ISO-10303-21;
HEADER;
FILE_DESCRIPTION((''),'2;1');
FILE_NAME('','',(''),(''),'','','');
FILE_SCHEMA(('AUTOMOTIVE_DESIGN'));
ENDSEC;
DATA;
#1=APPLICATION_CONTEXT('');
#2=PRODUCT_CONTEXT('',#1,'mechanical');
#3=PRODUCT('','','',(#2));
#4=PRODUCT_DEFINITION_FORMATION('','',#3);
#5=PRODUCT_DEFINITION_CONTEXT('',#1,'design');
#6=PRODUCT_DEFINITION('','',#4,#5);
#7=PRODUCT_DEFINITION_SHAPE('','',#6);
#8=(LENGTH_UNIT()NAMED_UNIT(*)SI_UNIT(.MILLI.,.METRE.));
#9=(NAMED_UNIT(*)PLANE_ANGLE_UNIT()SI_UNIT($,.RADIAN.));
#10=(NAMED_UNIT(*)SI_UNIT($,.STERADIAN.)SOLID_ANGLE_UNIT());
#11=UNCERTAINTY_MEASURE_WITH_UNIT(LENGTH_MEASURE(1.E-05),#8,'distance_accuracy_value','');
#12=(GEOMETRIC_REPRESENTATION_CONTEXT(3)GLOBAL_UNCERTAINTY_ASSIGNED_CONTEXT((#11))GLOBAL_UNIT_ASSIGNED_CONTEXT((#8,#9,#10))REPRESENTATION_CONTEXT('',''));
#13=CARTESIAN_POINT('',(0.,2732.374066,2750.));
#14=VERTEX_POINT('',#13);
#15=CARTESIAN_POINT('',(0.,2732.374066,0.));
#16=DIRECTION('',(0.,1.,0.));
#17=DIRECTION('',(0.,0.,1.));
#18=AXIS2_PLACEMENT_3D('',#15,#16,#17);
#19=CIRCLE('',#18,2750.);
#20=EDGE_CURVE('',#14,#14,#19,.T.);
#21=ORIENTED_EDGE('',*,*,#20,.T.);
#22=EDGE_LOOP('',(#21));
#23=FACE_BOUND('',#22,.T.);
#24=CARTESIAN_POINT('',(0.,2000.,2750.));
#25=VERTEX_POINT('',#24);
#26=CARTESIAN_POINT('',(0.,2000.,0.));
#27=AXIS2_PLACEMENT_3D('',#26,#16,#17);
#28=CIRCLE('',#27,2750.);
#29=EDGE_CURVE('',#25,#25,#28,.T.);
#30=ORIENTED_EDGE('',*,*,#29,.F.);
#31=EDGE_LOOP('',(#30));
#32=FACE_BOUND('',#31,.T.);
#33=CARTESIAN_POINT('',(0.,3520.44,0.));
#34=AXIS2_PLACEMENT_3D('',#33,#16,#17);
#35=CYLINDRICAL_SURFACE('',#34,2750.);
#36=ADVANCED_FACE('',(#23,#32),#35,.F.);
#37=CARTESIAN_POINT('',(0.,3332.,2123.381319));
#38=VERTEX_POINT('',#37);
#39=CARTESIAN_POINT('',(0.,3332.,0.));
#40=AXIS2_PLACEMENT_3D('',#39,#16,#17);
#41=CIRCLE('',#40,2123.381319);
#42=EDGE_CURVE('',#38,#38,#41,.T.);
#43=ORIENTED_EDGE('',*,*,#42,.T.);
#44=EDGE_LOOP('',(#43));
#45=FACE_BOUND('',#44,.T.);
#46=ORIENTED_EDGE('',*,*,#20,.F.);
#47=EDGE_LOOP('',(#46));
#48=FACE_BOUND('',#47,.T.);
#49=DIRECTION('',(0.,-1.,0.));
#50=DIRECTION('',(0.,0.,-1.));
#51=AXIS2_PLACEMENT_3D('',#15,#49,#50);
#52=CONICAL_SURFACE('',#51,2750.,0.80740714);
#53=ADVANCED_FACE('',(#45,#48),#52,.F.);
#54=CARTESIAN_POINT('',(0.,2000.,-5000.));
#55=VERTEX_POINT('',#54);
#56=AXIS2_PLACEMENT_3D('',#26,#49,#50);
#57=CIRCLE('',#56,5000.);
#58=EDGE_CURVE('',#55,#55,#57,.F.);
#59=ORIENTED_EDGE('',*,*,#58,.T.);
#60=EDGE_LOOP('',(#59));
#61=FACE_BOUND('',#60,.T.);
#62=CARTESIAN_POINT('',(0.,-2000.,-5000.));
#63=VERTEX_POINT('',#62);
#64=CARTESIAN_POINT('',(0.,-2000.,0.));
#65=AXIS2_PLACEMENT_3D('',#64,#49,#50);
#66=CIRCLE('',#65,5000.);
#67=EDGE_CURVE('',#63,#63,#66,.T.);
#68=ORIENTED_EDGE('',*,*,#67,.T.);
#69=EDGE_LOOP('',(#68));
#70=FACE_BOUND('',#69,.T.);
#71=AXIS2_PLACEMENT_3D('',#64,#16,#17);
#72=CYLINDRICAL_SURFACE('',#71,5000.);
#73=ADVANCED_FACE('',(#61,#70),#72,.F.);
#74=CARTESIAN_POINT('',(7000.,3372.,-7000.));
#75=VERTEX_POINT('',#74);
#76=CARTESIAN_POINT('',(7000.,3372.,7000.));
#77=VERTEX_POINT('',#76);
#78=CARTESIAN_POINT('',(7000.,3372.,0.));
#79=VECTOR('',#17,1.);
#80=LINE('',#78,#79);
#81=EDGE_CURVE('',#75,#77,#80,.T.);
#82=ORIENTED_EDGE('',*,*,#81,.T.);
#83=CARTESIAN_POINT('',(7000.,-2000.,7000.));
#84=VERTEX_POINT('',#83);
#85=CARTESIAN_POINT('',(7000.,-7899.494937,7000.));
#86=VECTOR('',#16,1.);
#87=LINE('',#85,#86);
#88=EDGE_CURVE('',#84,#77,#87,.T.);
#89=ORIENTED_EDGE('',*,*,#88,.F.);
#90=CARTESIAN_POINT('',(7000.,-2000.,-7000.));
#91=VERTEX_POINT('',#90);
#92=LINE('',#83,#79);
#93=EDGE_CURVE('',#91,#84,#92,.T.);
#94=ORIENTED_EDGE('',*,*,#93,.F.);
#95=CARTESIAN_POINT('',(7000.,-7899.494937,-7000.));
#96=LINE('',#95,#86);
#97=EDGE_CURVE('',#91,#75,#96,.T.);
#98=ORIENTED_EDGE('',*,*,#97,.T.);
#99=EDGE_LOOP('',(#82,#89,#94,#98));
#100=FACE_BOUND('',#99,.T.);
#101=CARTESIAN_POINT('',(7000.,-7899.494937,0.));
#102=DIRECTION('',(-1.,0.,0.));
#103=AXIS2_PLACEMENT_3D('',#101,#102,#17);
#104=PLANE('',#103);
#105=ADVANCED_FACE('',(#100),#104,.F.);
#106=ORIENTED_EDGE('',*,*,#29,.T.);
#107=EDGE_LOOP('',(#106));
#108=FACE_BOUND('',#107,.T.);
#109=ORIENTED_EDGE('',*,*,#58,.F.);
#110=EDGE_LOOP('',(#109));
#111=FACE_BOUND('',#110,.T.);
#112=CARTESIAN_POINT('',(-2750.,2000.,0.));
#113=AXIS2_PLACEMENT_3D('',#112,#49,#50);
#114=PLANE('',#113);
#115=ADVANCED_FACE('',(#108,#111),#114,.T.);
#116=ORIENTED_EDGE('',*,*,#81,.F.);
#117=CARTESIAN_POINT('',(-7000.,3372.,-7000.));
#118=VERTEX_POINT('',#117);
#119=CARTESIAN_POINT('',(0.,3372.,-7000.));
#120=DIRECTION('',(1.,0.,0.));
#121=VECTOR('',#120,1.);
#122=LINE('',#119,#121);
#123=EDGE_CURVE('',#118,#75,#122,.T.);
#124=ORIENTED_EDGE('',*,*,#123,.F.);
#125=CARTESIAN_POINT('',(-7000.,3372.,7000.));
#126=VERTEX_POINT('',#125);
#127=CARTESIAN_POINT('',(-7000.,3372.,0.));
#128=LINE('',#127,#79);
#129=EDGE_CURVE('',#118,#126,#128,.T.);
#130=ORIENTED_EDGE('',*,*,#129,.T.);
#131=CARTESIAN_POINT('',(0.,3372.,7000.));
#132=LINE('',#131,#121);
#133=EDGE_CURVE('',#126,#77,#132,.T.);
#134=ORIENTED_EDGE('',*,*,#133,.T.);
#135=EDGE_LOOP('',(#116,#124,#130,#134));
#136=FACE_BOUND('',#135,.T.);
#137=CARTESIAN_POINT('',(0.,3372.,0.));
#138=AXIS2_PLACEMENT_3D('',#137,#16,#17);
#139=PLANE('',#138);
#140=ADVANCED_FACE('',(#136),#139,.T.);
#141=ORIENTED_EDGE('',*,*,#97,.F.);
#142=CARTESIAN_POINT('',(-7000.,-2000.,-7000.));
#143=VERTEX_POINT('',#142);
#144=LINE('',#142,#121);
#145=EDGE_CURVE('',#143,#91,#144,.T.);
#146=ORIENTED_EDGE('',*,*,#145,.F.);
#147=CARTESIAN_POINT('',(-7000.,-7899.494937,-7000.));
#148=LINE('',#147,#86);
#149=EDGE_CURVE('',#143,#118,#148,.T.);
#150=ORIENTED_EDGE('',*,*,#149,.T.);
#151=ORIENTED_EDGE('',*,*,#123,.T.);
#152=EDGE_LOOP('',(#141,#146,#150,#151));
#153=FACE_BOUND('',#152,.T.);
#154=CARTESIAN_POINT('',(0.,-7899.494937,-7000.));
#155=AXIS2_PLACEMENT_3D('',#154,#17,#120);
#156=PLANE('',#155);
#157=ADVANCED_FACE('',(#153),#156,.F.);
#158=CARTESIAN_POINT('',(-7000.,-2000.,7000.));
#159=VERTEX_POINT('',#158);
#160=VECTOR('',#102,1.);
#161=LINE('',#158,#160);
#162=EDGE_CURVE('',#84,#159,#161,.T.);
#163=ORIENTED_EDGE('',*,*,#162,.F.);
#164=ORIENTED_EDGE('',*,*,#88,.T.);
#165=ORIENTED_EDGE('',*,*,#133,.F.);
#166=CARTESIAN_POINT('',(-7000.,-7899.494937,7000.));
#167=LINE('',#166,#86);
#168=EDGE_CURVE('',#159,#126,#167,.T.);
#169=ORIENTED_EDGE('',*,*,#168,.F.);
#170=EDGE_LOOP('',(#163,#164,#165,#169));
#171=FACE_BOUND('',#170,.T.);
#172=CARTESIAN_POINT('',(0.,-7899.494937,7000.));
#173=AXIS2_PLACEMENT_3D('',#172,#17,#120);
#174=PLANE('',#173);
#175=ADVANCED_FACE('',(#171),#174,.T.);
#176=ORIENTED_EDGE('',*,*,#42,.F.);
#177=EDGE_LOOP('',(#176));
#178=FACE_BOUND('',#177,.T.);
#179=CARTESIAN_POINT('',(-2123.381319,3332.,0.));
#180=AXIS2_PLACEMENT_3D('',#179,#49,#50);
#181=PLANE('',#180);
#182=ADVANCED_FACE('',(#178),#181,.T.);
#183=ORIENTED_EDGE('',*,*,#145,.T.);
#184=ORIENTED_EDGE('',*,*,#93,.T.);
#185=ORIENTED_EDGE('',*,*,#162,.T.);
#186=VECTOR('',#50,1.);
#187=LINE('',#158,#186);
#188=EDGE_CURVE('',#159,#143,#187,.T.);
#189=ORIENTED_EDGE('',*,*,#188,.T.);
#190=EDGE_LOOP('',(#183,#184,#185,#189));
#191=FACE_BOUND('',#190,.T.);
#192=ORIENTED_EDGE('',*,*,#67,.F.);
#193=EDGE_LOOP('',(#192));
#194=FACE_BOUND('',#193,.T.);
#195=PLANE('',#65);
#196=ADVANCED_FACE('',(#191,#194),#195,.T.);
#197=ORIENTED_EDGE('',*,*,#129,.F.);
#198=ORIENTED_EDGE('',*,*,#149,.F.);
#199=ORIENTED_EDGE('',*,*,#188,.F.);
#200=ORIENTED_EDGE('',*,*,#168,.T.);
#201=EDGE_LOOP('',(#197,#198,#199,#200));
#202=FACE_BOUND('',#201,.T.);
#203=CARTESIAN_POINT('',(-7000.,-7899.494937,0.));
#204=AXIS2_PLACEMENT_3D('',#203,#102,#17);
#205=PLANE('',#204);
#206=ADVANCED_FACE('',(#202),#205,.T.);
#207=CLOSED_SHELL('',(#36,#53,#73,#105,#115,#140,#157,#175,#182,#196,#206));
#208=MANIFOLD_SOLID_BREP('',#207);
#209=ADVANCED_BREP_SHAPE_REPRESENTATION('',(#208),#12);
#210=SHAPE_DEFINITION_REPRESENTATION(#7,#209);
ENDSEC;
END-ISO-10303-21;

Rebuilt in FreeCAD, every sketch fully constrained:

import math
import FreeCAD as App
import Part
import Sketcher

V = App.Vector


def add_polygon(sketch, points):
    """Adds a closed chain of lines whose ends are joined by coincident constraints."""
    first, n = sketch.GeometryCount, len(points)
    for a, b in zip(points, points[1:] + points[:1]):
        sketch.addGeometry(Part.LineSegment(App.Vector(*a, 0), App.Vector(*b, 0)), False)
    for i in range(n):
        sketch.addConstraint(Sketcher.Constraint("Coincident", first + i, 2, first + (i + 1) % n, 1))

doc = App.newDocument("Part")
body = doc.addObject("PartDesign::Body", "Body")

# Sketch on XY plane
sketch1 = doc.addObject("Sketcher::SketchObject", "Sketch")
body.addObject(sketch1)
sketch1.AttachmentSupport = (doc.XY_Plane, [""])
sketch1.MapMode = "FlatFace"
add_polygon(sketch1, [(-7000, 2000), (-2750, 2000), (-2750, 2732), (-2123, 3332), (0, 3332), (0, 3372), (-7000, 3372)])  # lines 0-6
sketch1.addConstraint([
    Sketcher.Constraint("Horizontal", 0),
    Sketcher.Constraint("Vertical", 1),
    Sketcher.Constraint("Horizontal", 3),
    Sketcher.Constraint("Vertical", 4),
    Sketcher.Constraint("Horizontal", 5),
    Sketcher.Constraint("Vertical", 6),
    Sketcher.Constraint("PointOnObject", 3, 2, -2),
    Sketcher.Constraint("DistanceX", 0, 1, 0, 2, 4250.0),
    Sketcher.Constraint("DistanceX", 5, 2, 5, 1, 7000.0),
    Sketcher.Constraint("DistanceY", 4, 1, 4, 2, 40.0),
    Sketcher.Constraint("DistanceY", 6, 2, 6, 1, 1372.0),
    Sketcher.Constraint("DistanceY", -1, 1, 0, 2, 2000.0),
    Sketcher.Constraint("DistanceX", 3, 1, 3, 2, 2123.381319),
    Sketcher.Constraint("Distance", 2, 867.295931),
])
revolution = doc.addObject("PartDesign::Revolution", "Revolution")
body.addObject(revolution)
revolution.Profile = sketch1
revolution.ReferenceAxis = (sketch1, ["V_Axis"])
revolution.Angle = 360

# Sketch on XZ plane
sketch2 = doc.addObject("Sketcher::SketchObject", "Sketch001")
body.addObject(sketch2)
sketch2.AttachmentSupport = (doc.XZ_Plane, [""])
sketch2.MapMode = "FlatFace"
sketch2.AttachmentOffset = App.Placement(V(0, 0, -3372), App.Rotation())
sketch2.addGeometry([
    Part.ArcOfCircle(Part.Circle(V(0, 0, 0), V(0, 0, 1), 7000), math.radians(90), math.radians(180)),  # 0
    Part.LineSegment(V(-7000, 0, 0), V(-7000, 7000, 0)),  # 1
    Part.LineSegment(V(-7000, 7000, 0), V(0, 7000, 0)),  # 2
    Part.LineSegment(V(0, -7000, 0), V(-7000, -7000, 0)),  # 3
    Part.LineSegment(V(-7000, -7000, 0), V(-7000, 0, 0)),  # 4
    Part.ArcOfCircle(Part.Circle(V(0, 0, 0), V(0, 0, 1), 7000), math.radians(180), math.radians(270)),  # 5
    Part.LineSegment(V(7000, -7000, 0), V(0, -7000, 0)),  # 6
    Part.ArcOfCircle(Part.Circle(V(0, 0, 0), V(0, 0, 1), 7000), math.radians(-90), math.radians(0)),  # 7
    Part.LineSegment(V(7000, 0, 0), V(7000, -7000, 0)),  # 8
    Part.LineSegment(V(7000, 7000, 0), V(7000, 0, 0)),  # 9
    Part.ArcOfCircle(Part.Circle(V(0, 0, 0), V(0, 0, 1), 7000), math.radians(0), math.radians(90)),  # 10
    Part.LineSegment(V(0, 7000, 0), V(7000, 7000, 0)),  # 11
], False)
sketch2.addConstraint([
    Sketcher.Constraint("Coincident", 0, 2, 1, 1),
    Sketcher.Constraint("Coincident", 1, 2, 2, 1),
    Sketcher.Constraint("Coincident", 2, 2, 0, 1),
    Sketcher.Constraint("Coincident", 3, 2, 4, 1),
    Sketcher.Constraint("Coincident", 4, 2, 5, 1),
    Sketcher.Constraint("Coincident", 5, 2, 3, 1),
    Sketcher.Constraint("Coincident", 6, 2, 7, 1),
    Sketcher.Constraint("Coincident", 7, 2, 8, 1),
    Sketcher.Constraint("Coincident", 8, 2, 6, 1),
    Sketcher.Constraint("Coincident", 9, 2, 10, 1),
    Sketcher.Constraint("Coincident", 10, 2, 11, 1),
    Sketcher.Constraint("Coincident", 11, 2, 9, 1),
    Sketcher.Constraint("Vertical", 1),
    Sketcher.Constraint("Horizontal", 2),
    Sketcher.Constraint("Horizontal", 3),
    Sketcher.Constraint("Vertical", 4),
    Sketcher.Constraint("Horizontal", 6),
    Sketcher.Constraint("Vertical", 8),
    Sketcher.Constraint("Vertical", 9),
    Sketcher.Constraint("Horizontal", 11),
    Sketcher.Constraint("Coincident", 0, 3, -1, 1),
    Sketcher.Constraint("Coincident", 5, 3, -1, 1),
    Sketcher.Constraint("Coincident", 7, 3, -1, 1),
    Sketcher.Constraint("Coincident", 10, 3, -1, 1),
    Sketcher.Constraint("Equal", 0, 5),
    Sketcher.Constraint("Equal", 5, 7),
    Sketcher.Constraint("Equal", 7, 10),
    Sketcher.Constraint("PointOnObject", 9, 2, -1),
    Sketcher.Constraint("Equal", 8, 9),
    Sketcher.Constraint("Radius", 0, 7000.0),
    Sketcher.Constraint("DistanceX", 3, 2, 3, 1, 6999.99998),
    Sketcher.Constraint("DistanceX", 6, 2, 6, 1, 7000.00002),
    Sketcher.Constraint("DistanceX", 2, 1, 2, 2, 7000.000008),
    Sketcher.Constraint("DistanceX", 11, 1, 11, 2, 6999.999992),
    Sketcher.Constraint("DistanceY", 1, 1, 1, 2, 6999.999974),
    Sketcher.Constraint("DistanceY", 4, 1, 4, 2, 7000.000026),
])
pad1 = doc.addObject("PartDesign::Pad", "Pad")
body.addObject(pad1)
pad1.Profile = sketch2
pad1.Length = 1372

# Sketch on XZ plane
sketch3 = doc.addObject("Sketcher::SketchObject", "Sketch002")
body.addObject(sketch3)
sketch3.AttachmentSupport = (doc.XZ_Plane, [""])
sketch3.MapMode = "FlatFace"
sketch3.AttachmentOffset = App.Placement(V(0, 0, -2000), App.Rotation())
add_polygon(sketch3, [(-7000, 7000), (-7000, -7000), (7000, -7000), (7000, 7000)])  # lines 0-3
sketch3.addGeometry(Part.Circle(V(0, 0, 0), V(0, 0, 1), 5000), False)  # 4
sketch3.addConstraint([
    Sketcher.Constraint("Vertical", 0),
    Sketcher.Constraint("Horizontal", 1),
    Sketcher.Constraint("Vertical", 2),
    Sketcher.Constraint("Horizontal", 3),
    Sketcher.Constraint("Coincident", 4, 3, -1, 1),
    Sketcher.Constraint("Symmetric", 0, 2, 2, 2, -1, 1),
    Sketcher.Constraint("Equal", 3, 0),
    Sketcher.Constraint("Diameter", 4, 10000.0),
    Sketcher.Constraint("DistanceX", 1, 1, 1, 2, 14000.0),
])
pad2 = doc.addObject("PartDesign::Pad", "Pad001")
body.addObject(pad2)
pad2.Profile = sketch3
pad2.Length = 4000

doc.recompute()
